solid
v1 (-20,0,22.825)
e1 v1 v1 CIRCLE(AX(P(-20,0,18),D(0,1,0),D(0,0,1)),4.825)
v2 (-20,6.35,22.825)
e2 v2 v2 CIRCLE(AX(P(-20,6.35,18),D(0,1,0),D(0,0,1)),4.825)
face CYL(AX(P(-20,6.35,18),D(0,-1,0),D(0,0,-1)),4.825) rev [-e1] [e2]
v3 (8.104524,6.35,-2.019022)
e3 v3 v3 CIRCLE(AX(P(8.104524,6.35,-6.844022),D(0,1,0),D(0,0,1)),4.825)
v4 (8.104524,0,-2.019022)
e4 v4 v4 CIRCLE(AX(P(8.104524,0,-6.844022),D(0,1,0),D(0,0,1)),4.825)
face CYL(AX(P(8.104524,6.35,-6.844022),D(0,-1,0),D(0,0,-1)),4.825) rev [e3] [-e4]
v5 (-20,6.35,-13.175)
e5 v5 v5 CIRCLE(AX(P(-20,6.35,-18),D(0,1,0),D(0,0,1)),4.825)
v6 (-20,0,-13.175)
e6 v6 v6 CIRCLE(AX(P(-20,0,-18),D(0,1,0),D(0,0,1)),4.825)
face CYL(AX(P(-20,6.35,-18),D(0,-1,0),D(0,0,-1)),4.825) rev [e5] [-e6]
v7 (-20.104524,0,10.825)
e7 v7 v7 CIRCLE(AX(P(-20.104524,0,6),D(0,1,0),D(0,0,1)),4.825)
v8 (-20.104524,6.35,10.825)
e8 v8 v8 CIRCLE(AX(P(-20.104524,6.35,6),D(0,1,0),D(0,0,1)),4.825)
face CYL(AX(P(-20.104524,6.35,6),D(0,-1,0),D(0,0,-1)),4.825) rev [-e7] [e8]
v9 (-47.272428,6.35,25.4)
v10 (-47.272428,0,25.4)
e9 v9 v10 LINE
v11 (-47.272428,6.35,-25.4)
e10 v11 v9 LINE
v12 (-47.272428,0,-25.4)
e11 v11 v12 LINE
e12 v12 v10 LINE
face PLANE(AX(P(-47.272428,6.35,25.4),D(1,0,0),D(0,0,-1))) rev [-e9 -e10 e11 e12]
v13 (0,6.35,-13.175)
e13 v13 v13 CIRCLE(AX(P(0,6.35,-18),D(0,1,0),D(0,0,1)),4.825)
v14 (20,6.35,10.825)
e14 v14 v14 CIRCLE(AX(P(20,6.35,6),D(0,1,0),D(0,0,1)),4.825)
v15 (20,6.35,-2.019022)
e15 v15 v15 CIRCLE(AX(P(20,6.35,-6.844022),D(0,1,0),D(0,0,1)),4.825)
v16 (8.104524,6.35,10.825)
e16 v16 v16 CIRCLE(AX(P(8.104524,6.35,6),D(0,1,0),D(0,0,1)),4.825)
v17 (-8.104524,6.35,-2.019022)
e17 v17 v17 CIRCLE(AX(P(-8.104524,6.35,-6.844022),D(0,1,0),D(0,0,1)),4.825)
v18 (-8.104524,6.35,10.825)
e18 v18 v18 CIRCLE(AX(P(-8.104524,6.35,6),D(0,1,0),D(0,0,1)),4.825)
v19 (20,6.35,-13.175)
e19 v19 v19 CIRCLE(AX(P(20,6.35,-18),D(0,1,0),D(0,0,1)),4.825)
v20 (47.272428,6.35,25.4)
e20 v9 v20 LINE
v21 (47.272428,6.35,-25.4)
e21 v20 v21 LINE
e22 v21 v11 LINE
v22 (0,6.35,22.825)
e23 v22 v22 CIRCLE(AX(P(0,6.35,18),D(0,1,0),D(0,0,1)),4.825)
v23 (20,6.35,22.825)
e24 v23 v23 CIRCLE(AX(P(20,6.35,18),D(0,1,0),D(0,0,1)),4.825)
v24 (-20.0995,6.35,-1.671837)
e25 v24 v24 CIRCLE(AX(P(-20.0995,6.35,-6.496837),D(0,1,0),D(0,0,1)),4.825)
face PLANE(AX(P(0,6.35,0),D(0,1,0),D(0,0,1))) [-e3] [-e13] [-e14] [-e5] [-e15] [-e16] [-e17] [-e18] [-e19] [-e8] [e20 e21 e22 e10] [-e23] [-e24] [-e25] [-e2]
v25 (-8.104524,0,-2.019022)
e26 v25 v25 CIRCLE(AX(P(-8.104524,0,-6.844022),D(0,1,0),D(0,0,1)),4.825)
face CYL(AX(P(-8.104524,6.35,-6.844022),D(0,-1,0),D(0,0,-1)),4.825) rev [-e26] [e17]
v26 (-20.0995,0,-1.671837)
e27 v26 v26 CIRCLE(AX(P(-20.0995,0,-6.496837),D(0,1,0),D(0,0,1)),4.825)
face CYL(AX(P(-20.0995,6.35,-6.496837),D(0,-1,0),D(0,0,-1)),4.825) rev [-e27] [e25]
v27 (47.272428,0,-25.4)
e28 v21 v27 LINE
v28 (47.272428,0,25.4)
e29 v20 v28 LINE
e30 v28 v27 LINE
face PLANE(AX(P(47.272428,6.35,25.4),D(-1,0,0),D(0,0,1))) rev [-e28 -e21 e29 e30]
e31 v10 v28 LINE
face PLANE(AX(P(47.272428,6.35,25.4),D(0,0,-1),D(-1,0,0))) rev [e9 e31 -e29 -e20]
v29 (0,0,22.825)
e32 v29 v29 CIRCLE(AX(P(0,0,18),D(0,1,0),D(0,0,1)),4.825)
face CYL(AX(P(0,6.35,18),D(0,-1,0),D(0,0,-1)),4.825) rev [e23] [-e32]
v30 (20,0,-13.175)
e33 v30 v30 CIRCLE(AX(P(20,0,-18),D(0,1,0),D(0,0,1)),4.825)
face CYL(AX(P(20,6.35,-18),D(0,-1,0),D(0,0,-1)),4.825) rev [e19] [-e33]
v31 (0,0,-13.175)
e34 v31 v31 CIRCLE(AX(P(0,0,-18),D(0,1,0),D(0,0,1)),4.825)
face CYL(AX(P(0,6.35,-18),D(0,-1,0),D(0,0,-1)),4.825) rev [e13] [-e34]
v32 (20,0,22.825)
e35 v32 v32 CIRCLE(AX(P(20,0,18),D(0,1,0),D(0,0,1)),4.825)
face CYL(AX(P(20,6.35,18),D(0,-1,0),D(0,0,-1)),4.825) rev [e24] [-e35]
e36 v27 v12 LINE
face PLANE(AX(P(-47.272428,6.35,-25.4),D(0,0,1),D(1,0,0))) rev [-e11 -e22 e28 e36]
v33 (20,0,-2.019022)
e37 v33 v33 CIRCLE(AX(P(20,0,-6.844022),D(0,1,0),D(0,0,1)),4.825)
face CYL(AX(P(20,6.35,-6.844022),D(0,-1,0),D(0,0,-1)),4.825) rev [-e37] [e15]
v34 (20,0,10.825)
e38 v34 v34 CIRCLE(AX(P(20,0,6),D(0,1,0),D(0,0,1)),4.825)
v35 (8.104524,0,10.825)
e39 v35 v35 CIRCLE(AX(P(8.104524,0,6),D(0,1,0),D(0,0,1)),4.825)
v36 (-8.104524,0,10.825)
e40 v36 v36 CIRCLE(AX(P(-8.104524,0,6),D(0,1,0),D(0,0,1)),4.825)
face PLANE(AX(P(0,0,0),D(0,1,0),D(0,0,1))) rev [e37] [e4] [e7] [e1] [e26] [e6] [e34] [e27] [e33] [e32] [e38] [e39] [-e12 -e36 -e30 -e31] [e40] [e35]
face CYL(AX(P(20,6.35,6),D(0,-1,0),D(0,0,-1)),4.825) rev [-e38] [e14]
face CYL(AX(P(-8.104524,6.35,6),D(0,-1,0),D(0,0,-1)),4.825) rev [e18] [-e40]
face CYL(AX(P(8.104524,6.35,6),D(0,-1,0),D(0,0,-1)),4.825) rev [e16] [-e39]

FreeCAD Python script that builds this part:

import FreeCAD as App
import Part
import Sketcher

V = App.Vector
Q = App.Units.Quantity


def add_polygon(sketch, points):
    """Adds a closed chain of lines whose ends are joined by coincident constraints."""
    first, n = sketch.GeometryCount, len(points)
    for a, b in zip(points, points[1:] + points[:1]):
        sketch.addGeometry(Part.LineSegment(App.Vector(*a, 0), App.Vector(*b, 0)), False)
    for i in range(n):
        sketch.addConstraint(Sketcher.Constraint("Coincident", first + i, 2, first + (i + 1) % n, 1))

doc = App.newDocument("Part")
params = doc.addObject("Spreadsheet::Sheet", "Params")
for row, (alias, value) in enumerate([
    ("sketch1_height", "2 in"),
    ("pad1_length", "0.25 in"),
], start=1):
    params.set(f"A{row}", alias)
    params.set(f"B{row}", "=" + value)
    params.setAlias(f"B{row}", alias)

body = doc.addObject("PartDesign::Body", "Body")

sketch1 = doc.addObject("Sketcher::SketchObject", "Sketch")
body.addObject(sketch1)
sketch1.AttachmentSupport = (doc.XZ_Plane, [""])
sketch1.MapMode = "FlatFace"
add_polygon(sketch1, [(-47.3, -25.4), (-47.3, 25.4), (47.3, 25.4), (47.3, -25.4)])
sketch1.addGeometry(Part.Circle(V(-20, 18, 0), V(0, 0, 1), 4.8), False)
sketch1.addGeometry(Part.Circle(V(-20.1, 6, 0), V(0, 0, 1), 4.8), False)
sketch1.addGeometry(Part.Circle(V(-8.1, 6, 0), V(0, 0, 1), 4.8), False)
sketch1.addGeometry(Part.Circle(V(0, 18, 0), V(0, 0, 1), 4.8), False)
sketch1.addGeometry(Part.Circle(V(20, 18, 0), V(0, 0, 1), 4.8), False)
sketch1.addGeometry(Part.Circle(V(8.1, 6, 0), V(0, 0, 1), 4.8), False)
sketch1.addGeometry(Part.Circle(V(20, 6, 0), V(0, 0, 1), 4.8), False)
sketch1.addGeometry(Part.Circle(V(-20.1, -6.5, 0), V(0, 0, 1), 4.8), False)
sketch1.addGeometry(Part.Circle(V(-8.1, -6.8, 0), V(0, 0, 1), 4.8), False)
sketch1.addGeometry(Part.Circle(V(-20, -18, 0), V(0, 0, 1), 4.8), False)
sketch1.addGeometry(Part.Circle(V(8.1, -6.8, 0), V(0, 0, 1), 4.8), False)
sketch1.addGeometry(Part.Circle(V(20, -6.8, 0), V(0, 0, 1), 4.8), False)
sketch1.addGeometry(Part.Circle(V(0, -18, 0), V(0, 0, 1), 4.8), False)
sketch1.addGeometry(Part.Circle(V(20, -18, 0), V(0, 0, 1), 4.8), False)
sketch1.addConstraint([
    Sketcher.Constraint("Vertical", 0),
    Sketcher.Constraint("Horizontal", 1),
    Sketcher.Constraint("Vertical", 2),
    Sketcher.Constraint("Horizontal", 3),
    Sketcher.Constraint("Equal", 4, 5),
    Sketcher.Constraint("Equal", 5, 6),
    Sketcher.Constraint("Equal", 6, 7),
    Sketcher.Constraint("Equal", 7, 8),
    Sketcher.Constraint("Equal", 8, 9),
    Sketcher.Constraint("Equal", 9, 10),
    Sketcher.Constraint("Equal", 10, 11),
    Sketcher.Constraint("Equal", 11, 12),
    Sketcher.Constraint("Equal", 12, 13),
    Sketcher.Constraint("Equal", 13, 14),
    Sketcher.Constraint("Equal", 14, 15),
    Sketcher.Constraint("Equal", 15, 16),
    Sketcher.Constraint("Equal", 16, 17),
    Sketcher.Constraint("Symmetric", 8, 3, 13, 3, -1, 1),
    Sketcher.Constraint("Symmetric", 7, 3, 16, 3, -1, 1),
    Sketcher.Constraint("Symmetric", 4, 3, 17, 3, -1, 1),
    Sketcher.Constraint("Symmetric", 0, 2, 2, 2, -1, 1),
    Sketcher.Constraint("Symmetric", 4, 3, 8, 3, -2),
    Sketcher.Constraint("Symmetric", 6, 3, 9, 3, -2),
    Sketcher.Constraint("Symmetric", 12, 3, 14, 3, -2),
    Sketcher.Constraint("PointOnObject", 7, 3, -2),
    Sketcher.Constraint("Horizontal", 5, 3, 6, 3),
    Sketcher.Constraint("Horizontal", 4, 3, 7, 3),
    Sketcher.Constraint("Horizontal", 9, 3, 10, 3),
    Sketcher.Constraint("Horizontal", 14, 3, 15, 3),
    Sketcher.Constraint("Vertical", 8, 3, 10, 3),
    Sketcher.Constraint("Vertical", 6, 3, 12, 3),
    Sketcher.Constraint("Vertical", 10, 3, 15, 3),
    Sketcher.Constraint("DistanceY", 0, 1, 0, 2, Q("2 in")),
    Sketcher.Constraint("Diameter", 4, 9.65),
    Sketcher.Constraint("DistanceX", 4, 3, -1, 1, 20.0),
    Sketcher.Constraint("DistanceY", -1, 1, 4, 3, 18.0),
    Sketcher.Constraint("DistanceY", -1, 1, 5, 3, 6.0),
    Sketcher.Constraint("DistanceX", 11, 3, -1, 1, 20.0995),
    Sketcher.Constraint("DistanceX", 5, 3, 6, 3, 12.0),
    Sketcher.Constraint("DistanceX", 1, 1, 1, 2, 94.544856),
    Sketcher.Constraint("DistanceY", 12, 3, -1, 1, 6.844022),
    Sketcher.Constraint("DistanceX", 5, 3, -1, 1, 20.104524),
    Sketcher.Constraint("DistanceY", 11, 3, -1, 1, 6.496837),
])
sketch1.setExpression("Constraints[36]", "Params.sketch1_height")
pad1 = doc.addObject("PartDesign::Pad", "Pad")
body.addObject(pad1)
pad1.Profile = sketch1
pad1.setExpression("Length", "Params.pad1_length")
pad1.Reversed = True

doc.recompute()
